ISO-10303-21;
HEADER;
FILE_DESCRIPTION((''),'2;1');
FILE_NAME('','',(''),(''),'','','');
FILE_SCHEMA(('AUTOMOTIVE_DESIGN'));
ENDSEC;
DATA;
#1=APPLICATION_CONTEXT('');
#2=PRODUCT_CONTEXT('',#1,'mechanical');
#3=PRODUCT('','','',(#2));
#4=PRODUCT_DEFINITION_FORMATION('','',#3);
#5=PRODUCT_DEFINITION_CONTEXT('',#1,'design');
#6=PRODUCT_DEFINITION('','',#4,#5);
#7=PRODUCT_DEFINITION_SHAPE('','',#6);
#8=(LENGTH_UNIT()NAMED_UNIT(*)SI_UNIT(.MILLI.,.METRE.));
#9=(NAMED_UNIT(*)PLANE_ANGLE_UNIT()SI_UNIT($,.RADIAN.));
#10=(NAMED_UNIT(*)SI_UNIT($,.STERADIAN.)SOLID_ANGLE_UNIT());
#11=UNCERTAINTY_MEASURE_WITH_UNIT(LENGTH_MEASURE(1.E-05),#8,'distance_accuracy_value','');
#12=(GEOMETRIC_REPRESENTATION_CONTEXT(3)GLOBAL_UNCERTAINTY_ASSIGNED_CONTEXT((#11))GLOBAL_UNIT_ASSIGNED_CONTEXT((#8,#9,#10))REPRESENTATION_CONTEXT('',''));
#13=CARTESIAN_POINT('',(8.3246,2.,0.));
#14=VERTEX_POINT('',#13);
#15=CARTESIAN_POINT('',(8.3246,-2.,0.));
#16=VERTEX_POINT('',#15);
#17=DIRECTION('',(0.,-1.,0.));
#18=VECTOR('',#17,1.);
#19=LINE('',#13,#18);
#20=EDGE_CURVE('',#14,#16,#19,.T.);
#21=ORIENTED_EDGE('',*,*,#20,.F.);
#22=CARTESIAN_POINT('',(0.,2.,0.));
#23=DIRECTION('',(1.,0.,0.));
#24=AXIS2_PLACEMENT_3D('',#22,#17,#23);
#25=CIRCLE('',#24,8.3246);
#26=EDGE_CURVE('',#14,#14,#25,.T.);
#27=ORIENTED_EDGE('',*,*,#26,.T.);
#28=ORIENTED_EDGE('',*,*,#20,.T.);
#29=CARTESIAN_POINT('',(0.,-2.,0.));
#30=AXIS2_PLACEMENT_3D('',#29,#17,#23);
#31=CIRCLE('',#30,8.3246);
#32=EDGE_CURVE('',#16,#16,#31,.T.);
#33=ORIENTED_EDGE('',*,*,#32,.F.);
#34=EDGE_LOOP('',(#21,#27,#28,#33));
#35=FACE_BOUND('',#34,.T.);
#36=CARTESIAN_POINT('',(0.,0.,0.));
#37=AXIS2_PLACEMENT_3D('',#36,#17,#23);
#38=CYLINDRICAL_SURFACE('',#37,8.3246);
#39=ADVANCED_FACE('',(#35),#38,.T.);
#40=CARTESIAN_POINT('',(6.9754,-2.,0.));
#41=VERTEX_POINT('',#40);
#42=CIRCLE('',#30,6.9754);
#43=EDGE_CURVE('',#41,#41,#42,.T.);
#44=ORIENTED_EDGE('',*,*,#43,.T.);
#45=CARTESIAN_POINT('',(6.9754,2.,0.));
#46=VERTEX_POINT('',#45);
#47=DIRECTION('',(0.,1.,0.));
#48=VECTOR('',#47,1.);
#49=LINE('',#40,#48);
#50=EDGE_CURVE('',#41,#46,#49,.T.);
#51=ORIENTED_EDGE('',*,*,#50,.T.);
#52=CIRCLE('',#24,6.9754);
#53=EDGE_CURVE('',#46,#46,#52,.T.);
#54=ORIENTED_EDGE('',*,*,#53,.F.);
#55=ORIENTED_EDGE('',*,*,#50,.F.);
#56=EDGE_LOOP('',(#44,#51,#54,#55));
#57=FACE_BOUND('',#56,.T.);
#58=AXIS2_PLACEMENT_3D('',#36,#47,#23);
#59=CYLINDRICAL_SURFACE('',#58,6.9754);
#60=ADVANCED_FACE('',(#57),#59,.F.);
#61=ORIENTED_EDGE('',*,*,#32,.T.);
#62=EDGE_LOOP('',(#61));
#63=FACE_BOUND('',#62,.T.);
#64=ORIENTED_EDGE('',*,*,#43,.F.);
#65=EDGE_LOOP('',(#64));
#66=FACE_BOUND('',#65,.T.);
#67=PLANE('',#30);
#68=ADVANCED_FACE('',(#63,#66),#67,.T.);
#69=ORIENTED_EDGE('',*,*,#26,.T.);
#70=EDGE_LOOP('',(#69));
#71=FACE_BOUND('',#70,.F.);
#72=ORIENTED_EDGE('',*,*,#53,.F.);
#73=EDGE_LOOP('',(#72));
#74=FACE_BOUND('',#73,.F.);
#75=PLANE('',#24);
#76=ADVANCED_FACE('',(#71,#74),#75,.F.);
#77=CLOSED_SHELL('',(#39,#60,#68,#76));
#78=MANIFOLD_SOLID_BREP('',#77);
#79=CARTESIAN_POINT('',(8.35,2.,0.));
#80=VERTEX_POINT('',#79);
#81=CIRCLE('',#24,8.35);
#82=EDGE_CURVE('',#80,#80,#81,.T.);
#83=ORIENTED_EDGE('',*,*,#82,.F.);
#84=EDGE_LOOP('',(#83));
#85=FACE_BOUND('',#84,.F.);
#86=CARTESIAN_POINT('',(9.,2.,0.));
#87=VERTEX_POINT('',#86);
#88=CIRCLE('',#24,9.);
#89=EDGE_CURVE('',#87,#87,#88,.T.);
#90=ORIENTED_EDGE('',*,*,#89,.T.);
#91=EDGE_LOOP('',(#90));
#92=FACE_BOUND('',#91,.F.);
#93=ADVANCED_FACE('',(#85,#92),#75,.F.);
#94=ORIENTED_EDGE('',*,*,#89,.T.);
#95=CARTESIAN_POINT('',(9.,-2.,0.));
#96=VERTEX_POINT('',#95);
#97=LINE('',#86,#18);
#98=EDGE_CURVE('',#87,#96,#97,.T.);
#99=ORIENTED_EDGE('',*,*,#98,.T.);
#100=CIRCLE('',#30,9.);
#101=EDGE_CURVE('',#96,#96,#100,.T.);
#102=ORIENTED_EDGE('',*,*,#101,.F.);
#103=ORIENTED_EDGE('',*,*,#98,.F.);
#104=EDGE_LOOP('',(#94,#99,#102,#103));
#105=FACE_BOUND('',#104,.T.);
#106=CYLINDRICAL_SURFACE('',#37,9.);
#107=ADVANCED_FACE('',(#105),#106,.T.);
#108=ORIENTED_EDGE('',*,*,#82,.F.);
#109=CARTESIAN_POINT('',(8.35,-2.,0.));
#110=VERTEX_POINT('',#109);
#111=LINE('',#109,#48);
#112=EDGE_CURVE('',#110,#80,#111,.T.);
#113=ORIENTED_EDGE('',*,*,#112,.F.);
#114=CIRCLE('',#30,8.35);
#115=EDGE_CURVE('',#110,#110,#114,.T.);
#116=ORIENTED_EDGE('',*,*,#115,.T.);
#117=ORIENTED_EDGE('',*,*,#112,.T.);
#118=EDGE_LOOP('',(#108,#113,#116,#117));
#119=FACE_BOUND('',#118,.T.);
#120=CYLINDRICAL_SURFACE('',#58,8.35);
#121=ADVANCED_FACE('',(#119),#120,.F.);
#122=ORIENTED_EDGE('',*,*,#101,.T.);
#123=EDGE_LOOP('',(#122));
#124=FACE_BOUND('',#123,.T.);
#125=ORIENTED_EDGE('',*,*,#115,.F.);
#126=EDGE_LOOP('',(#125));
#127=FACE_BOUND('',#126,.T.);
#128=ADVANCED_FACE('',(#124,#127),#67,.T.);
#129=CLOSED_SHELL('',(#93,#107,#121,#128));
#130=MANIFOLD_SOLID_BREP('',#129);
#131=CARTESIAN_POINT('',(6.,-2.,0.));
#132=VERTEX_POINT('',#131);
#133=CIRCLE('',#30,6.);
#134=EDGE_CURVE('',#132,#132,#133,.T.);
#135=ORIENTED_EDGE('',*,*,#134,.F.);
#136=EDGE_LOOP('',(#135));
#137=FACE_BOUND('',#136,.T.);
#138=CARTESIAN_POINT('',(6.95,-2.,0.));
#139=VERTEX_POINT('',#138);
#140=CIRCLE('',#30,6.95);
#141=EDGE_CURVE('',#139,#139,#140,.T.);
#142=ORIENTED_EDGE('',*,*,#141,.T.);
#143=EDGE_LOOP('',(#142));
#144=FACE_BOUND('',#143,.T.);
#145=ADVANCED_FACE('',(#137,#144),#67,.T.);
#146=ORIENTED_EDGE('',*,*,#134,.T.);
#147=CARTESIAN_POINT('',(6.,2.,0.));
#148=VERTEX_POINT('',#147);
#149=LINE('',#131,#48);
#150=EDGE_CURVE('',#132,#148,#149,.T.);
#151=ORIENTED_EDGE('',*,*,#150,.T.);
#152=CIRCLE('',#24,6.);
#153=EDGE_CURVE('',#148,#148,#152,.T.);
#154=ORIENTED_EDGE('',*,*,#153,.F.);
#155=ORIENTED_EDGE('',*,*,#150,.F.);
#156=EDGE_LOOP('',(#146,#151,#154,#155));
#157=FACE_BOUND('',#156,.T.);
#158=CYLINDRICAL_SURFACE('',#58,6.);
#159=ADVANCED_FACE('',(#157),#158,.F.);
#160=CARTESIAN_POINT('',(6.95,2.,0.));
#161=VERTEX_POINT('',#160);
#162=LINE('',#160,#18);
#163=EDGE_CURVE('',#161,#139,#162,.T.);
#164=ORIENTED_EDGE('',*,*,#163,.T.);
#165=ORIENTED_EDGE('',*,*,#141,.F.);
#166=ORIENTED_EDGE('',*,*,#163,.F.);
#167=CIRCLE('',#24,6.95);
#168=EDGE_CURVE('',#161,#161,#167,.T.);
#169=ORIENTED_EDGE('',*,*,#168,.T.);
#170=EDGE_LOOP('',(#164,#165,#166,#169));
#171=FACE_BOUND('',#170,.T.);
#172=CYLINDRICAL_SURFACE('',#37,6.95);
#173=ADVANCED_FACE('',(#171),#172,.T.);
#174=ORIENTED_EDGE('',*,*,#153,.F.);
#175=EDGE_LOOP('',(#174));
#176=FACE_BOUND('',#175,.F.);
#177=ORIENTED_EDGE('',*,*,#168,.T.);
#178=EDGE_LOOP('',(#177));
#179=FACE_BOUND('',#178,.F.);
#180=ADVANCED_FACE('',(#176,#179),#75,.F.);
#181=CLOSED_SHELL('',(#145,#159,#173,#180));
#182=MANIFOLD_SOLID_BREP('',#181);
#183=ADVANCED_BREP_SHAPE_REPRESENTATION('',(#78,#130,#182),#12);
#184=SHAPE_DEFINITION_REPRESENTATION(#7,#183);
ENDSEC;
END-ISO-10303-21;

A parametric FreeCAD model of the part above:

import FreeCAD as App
import Part
import Sketcher

V = App.Vector

doc = App.newDocument("Part")
params = doc.addObject("Spreadsheet::Sheet", "Params")
for row, (alias, value) in enumerate([
    ("sketch1_diameter", "18 mm"),
    ("sketch1_diameter2", "16.7 mm"),
    ("pad1_length", "4 mm"),
    ("sketch2_diameter", "12 mm"),
    ("sketch2_diameter2", "13.9 mm"),
    ("pad2_length", "4 mm"),
    ("pad3_length", "4 mm"),
], start=1):
    params.set(f"A{row}", alias)
    params.set(f"B{row}", "=" + value)
    params.setAlias(f"B{row}", alias)

body = doc.addObject("PartDesign::Body", "Body")

# Sketch on XZ plane
sketch1 = body.newObject("Sketcher::SketchObject", "Sketch")
sketch1.AttachmentSupport = (doc.getObject("XZ_Plane"), [""])
sketch1.MapMode = "FlatFace"
sketch1.addGeometry([
    Part.Circle(V(0, 0, 0), V(0, 0, 1), 9),
    Part.Circle(V(0, 0, 0), V(0, 0, 1), 8),
], False)
sketch1.addConstraint([
    Sketcher.Constraint("Coincident", 0, 3, -1, 1),
    Sketcher.Constraint("Coincident", 1, 3, -1, 1),
    Sketcher.Constraint("Diameter", 0, 18.0),
    Sketcher.Constraint("Diameter", 1, 16.7),
])
sketch1.setExpression("Constraints[2]", "Params.sketch1_diameter")
sketch1.setExpression("Constraints[3]", "Params.sketch1_diameter2")
pad1 = body.newObject("PartDesign::Pad", "Pad")
pad1.Profile = sketch1
pad1.setExpression("Length", "Params.pad1_length")
pad1.Midplane = True
body2 = doc.addObject("PartDesign::Body", "Body001")

# Sketch on XZ plane
sketch2 = body2.newObject("Sketcher::SketchObject", "Sketch001")
sketch2.AttachmentSupport = (doc.getObject("XZ_Plane001"), [""])
sketch2.MapMode = "FlatFace"
sketch2.addGeometry([
    Part.Circle(V(0, 0, 0), V(0, 0, 1), 7),
    Part.Circle(V(0, 0, 0), V(0, 0, 1), 6),
], False)
sketch2.addConstraint([
    Sketcher.Constraint("Coincident", 0, 3, -1, 1),
    Sketcher.Constraint("Coincident", 1, 3, -1, 1),
    Sketcher.Constraint("Diameter", 1, 12.0),
    Sketcher.Constraint("Diameter", 0, 13.9),
])
sketch2.setExpression("Constraints[2]", "Params.sketch2_diameter")
sketch2.setExpression("Constraints[3]", "Params.sketch2_diameter2")
pad2 = body2.newObject("PartDesign::Pad", "Pad001")
pad2.Profile = sketch2
pad2.setExpression("Length", "Params.pad2_length")
pad2.Midplane = True
body3 = doc.addObject("PartDesign::Body", "Body002")

# Sketch on XZ plane
sketch3 = body3.newObject("Sketcher::SketchObject", "Sketch002")
sketch3.AttachmentSupport = (doc.getObject("XZ_Plane002"), [""])
sketch3.MapMode = "FlatFace"
sketch3.addGeometry([
    Part.Circle(V(0, 0, 0), V(0, 0, 1), 8),
    Part.Circle(V(0, 0, 0), V(0, 0, 1), 7),
], False)
sketch3.addConstraint([
    Sketcher.Constraint("Coincident", 0, 3, -1, 1),
    Sketcher.Constraint("Coincident", 1, 3, -1, 1),
    Sketcher.Constraint("Diameter", 0, 16.6492),
    Sketcher.Constraint("Diameter", 1, 13.9508),
])
pad3 = body3.newObject("PartDesign::Pad", "Pad002")
pad3.Profile = sketch3
pad3.setExpression("Length", "Params.pad3_length")
pad3.Midplane = True

doc.recompute()
